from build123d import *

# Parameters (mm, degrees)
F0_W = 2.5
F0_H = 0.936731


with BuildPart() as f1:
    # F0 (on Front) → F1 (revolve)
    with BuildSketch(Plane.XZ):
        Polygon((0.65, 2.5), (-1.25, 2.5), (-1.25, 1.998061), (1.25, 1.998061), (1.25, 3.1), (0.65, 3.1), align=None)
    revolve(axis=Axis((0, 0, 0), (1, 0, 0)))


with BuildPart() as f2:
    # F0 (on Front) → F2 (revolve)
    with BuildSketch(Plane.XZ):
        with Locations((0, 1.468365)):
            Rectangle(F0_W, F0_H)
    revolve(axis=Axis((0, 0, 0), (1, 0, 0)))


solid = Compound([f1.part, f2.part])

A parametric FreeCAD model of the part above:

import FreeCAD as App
import Part
import Sketcher
from FreeCAD import Vector
Q = App.Units.Quantity


def add_polygon(sketch, points):
    """Adds a closed chain of lines whose ends are joined by coincident constraints."""
    first, n = sketch.GeometryCount, len(points)
    for a, b in zip(points, points[1:] + points[:1]):
        sketch.addGeometry(Part.LineSegment(App.Vector(*a, 0), App.Vector(*b, 0)), False)
    for i in range(n):
        sketch.addConstraint(Sketcher.Constraint("Coincident", first + i, 2, first + (i + 1) % n, 1))

doc = App.newDocument("Part")
params = doc.addObject("Spreadsheet::Sheet", "Params")
for row, (alias, value) in enumerate([
    ("sketch1_width", "1.9 mm"),
    ("sketch1_width2", "2.5 mm"),
    ("revolution_angle", "360 deg"),
    ("sketch2_width", "2.5 mm"),
    ("revolution2_angle", "360 deg"),
], start=1):
    params.set(f"A{row}", alias)
    params.set(f"B{row}", "=" + value)
    params.setAlias(f"B{row}", alias)

body = doc.addObject("PartDesign::Body", "Body")

sketch1 = doc.addObject("Sketcher::SketchObject", "Sketch")
body.addObject(sketch1)
sketch1.AttachmentSupport = (doc.XZ_Plane, [""])
sketch1.MapMode = "FlatFace"
add_polygon(sketch1, [(0.7, 2.5), (-1.2, 2.5), (-1.2, 2), (1.2, 2), (1.2, 3.1), (0.7, 3.1)])
sketch1.addConstraint([
    Sketcher.Constraint("Horizontal", 0),
    Sketcher.Constraint("Vertical", 1),
    Sketcher.Constraint("Horizontal", 2),
    Sketcher.Constraint("Vertical", 3),
    Sketcher.Constraint("Horizontal", 4),
    Sketcher.Constraint("Vertical", 5),
    Sketcher.Constraint("Equal", 4, 5),
    Sketcher.Constraint("DistanceX", 0, 2, 0, 1, Q("1.9 mm")),
    Sketcher.Constraint("DistanceX", 2, 1, 2, 2, Q("2.5 mm")),
    Sketcher.Constraint("DistanceY", -1, 1, 0, 2, Q("2.5 mm")),
    Sketcher.Constraint("DistanceX", 0, 2, -1, 1, Q("1.25 mm")),
    Sketcher.Constraint("DistanceY", 1, 2, 1, 1, Q("0.501939 mm")),
])
sketch1.setExpression("Constraints[13]", "Params.sketch1_width")
sketch1.setExpression("Constraints[14]", "Params.sketch1_width2")
revolution = doc.addObject("PartDesign::Revolution", "Revolution")
body.addObject(revolution)
revolution.Profile = sketch1
revolution.ReferenceAxis = (sketch1, ["H_Axis"])
revolution.setExpression("Angle", "Params.revolution_angle")
body2 = doc.addObject("PartDesign::Body", "Body001")

sketch2 = doc.addObject("Sketcher::SketchObject", "Sketch001")
body2.addObject(sketch2)
sketch2.AttachmentSupport = (doc.getObject("XZ_Plane001"), [""])
sketch2.MapMode = "FlatFace"
add_polygon(sketch2, [(-1.2, 1.9), (-1.2, 1), (1.2, 1), (1.2, 1.9)])
sketch2.addConstraint([
    Sketcher.Constraint("Vertical", 0),
    Sketcher.Constraint("Horizontal", 1),
    Sketcher.Constraint("Vertical", 2),
    Sketcher.Constraint("Horizontal", 3),
    Sketcher.Constraint("DistanceX", 1, 1, 1, 2, Q("2.5 mm")),
    Sketcher.Constraint("DistanceY", -1, 1, 0, 2, Q("1 mm")),
    Sketcher.Constraint("DistanceX", 0, 2, -1, 1, Q("1.25 mm")),
    Sketcher.Constraint("DistanceY", 0, 2, 0, 1, Q("0.936731 mm")),
])
sketch2.setExpression("Constraints[8]", "Params.sketch2_width")
revolution2 = doc.addObject("PartDesign::Revolution", "Revolution001")
body2.addObject(revolution2)
revolution2.Profile = sketch2
revolution2.ReferenceAxis = (sketch2, ["H_Axis"])
revolution2.setExpression("Angle", "Params.revolution2_angle")

doc.recompute()
